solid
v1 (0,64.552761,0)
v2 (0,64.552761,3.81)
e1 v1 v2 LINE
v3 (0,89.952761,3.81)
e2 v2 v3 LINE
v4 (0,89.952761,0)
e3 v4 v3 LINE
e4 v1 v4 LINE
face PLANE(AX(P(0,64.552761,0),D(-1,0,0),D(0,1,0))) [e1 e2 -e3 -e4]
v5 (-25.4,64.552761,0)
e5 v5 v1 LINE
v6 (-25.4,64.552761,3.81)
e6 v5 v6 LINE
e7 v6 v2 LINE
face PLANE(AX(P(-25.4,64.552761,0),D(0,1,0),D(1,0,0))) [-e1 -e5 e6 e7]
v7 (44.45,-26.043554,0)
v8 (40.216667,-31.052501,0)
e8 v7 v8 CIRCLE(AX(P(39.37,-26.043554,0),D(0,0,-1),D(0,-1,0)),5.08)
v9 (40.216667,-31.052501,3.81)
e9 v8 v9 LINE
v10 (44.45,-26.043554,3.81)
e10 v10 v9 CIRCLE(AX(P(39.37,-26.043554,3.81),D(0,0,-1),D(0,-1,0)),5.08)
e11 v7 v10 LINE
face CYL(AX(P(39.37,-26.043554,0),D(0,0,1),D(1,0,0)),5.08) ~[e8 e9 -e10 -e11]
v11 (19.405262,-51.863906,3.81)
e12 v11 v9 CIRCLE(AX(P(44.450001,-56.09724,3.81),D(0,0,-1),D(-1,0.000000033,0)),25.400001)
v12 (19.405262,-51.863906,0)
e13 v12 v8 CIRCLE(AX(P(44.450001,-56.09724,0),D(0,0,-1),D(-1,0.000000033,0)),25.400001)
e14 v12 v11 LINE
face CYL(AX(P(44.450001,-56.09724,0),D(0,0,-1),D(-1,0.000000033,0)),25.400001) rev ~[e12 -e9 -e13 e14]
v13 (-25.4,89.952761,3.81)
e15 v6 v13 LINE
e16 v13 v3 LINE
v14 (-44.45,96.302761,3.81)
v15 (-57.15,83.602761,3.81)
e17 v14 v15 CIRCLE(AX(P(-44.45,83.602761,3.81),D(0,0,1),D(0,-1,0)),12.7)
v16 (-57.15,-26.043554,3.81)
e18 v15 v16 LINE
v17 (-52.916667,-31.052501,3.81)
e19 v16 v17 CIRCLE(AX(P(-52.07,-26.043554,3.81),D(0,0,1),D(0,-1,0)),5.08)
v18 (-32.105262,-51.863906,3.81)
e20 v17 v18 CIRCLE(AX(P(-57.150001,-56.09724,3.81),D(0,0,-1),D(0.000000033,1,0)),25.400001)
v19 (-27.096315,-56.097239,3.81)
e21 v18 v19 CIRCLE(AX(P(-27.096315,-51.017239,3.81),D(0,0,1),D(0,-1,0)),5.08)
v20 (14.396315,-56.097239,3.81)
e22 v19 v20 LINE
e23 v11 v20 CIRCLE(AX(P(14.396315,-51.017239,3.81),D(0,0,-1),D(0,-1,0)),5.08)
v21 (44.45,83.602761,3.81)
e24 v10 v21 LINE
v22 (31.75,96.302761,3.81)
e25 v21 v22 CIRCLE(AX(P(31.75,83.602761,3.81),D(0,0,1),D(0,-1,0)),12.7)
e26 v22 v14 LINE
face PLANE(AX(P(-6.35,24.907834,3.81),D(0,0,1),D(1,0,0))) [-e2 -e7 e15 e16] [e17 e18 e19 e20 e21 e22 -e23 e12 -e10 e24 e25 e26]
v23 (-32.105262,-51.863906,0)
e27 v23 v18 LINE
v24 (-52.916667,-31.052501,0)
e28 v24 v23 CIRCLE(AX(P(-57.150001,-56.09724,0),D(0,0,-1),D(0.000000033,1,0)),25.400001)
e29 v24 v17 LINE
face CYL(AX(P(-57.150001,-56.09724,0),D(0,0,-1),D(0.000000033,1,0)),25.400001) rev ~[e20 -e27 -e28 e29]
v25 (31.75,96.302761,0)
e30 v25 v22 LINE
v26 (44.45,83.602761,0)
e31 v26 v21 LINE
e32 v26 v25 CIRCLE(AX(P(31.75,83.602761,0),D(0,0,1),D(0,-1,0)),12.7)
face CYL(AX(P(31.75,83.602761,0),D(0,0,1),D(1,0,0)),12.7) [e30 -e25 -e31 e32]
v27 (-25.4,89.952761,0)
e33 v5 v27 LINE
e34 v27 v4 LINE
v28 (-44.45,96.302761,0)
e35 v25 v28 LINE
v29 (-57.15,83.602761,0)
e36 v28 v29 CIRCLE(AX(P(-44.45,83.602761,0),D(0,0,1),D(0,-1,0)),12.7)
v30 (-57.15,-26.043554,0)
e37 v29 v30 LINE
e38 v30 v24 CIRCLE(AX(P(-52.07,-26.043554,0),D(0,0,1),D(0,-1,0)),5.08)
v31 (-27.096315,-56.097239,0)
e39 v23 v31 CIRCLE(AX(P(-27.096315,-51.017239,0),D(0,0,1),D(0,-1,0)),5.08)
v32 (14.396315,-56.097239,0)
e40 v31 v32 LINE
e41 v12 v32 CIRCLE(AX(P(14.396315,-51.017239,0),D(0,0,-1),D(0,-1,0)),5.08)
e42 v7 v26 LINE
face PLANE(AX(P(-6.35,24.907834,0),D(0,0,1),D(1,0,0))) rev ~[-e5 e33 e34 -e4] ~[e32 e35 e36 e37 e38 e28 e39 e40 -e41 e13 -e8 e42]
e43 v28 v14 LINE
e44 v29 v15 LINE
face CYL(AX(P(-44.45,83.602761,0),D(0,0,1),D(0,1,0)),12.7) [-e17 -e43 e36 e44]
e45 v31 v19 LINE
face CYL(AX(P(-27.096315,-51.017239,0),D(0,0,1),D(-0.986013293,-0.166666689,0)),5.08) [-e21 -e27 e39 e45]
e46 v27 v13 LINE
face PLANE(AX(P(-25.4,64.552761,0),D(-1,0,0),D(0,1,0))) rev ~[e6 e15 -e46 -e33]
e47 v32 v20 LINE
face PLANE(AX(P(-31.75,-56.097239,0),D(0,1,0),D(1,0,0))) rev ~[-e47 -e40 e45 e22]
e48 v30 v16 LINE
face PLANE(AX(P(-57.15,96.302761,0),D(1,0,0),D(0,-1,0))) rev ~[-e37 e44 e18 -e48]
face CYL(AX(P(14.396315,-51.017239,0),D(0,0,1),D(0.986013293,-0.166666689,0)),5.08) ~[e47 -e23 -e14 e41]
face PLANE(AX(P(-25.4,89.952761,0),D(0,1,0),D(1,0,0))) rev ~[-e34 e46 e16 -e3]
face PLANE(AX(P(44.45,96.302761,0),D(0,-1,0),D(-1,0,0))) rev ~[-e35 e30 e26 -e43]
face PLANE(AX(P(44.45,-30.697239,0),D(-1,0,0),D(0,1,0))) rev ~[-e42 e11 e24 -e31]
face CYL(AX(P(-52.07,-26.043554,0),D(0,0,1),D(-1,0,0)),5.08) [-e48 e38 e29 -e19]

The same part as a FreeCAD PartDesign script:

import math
import FreeCAD as App
import Part
import Sketcher
from FreeCAD import Vector
Q = App.Units.Quantity


def edges_at(feature, points):
    """Names of the edges that pass closest to the given points."""
    edges = feature.Shape.Edges
    near = lambda p: min(range(len(edges)), key=lambda i: edges[i].distToShape(Part.Vertex(*p))[0])
    return sorted({f"Edge{near(p) + 1}" for p in points})


def add_polygon(sketch, points):
    """Adds a closed chain of lines whose ends are joined by coincident constraints."""
    first, n = sketch.GeometryCount, len(points)
    for a, b in zip(points, points[1:] + points[:1]):
        sketch.addGeometry(Part.LineSegment(App.Vector(*a, 0), App.Vector(*b, 0)), False)
    for i in range(n):
        sketch.addConstraint(Sketcher.Constraint("Coincident", first + i, 2, first + (i + 1) % n, 1))

doc = App.newDocument("Part")
body = doc.addObject("PartDesign::Body", "Body")

# Sketch on XY plane
sketch1 = body.newObject("Sketcher::SketchObject", "Sketch")
sketch1.AttachmentSupport = (doc.getObject("XY_Plane"), [""])
sketch1.MapMode = "FlatFace"
sketch1.addGeometry(Part.LineSegment(Vector(-57, 96, 0), Vector(-57, -31, 0)), False)  # 0
sketch1.addGeometry(Part.ArcOfCircle(Part.Circle(Vector(-57, -56, 0), Vector(0, 0, 1), 25), math.radians(0), math.radians(90)), False)  # 1
sketch1.addGeometry(Part.LineSegment(Vector(-32, -56, 0), Vector(19, -56, 0)), False)  # 2
sketch1.addGeometry(Part.ArcOfCircle(Part.Circle(Vector(44, -56, 0), Vector(0, 0, 1), 25), math.radians(90), math.radians(180)), False)  # 3
sketch1.addGeometry(Part.LineSegment(Vector(44, -31, 0), Vector(44, 96, 0)), False)  # 4
sketch1.addGeometry(Part.LineSegment(Vector(44, 96, 0), Vector(-57, 96, 0)), False)  # 5
add_polygon(sketch1, [(0, 65), (-25, 65), (-25, 90), (0, 90)])  # lines 6-9
sketch1.addConstraint(Sketcher.Constraint("Coincident", 0, 2, 1, 2))
sketch1.addConstraint(Sketcher.Constraint("Coincident", 1, 1, 2, 1))
sketch1.addConstraint(Sketcher.Constraint("Coincident", 2, 2, 3, 2))
sketch1.addConstraint(Sketcher.Constraint("Coincident", 3, 1, 4, 1))
sketch1.addConstraint(Sketcher.Constraint("Coincident", 4, 2, 5, 1))
sketch1.addConstraint(Sketcher.Constraint("Coincident", 5, 2, 0, 1))
sketch1.addConstraint(Sketcher.Constraint("Vertical", 0))
sketch1.addConstraint(Sketcher.Constraint("Horizontal", 2))
sketch1.addConstraint(Sketcher.Constraint("Vertical", 4))
sketch1.addConstraint(Sketcher.Constraint("Horizontal", 5))
sketch1.addConstraint(Sketcher.Constraint("Horizontal", 6))
sketch1.addConstraint(Sketcher.Constraint("Vertical", 7))
sketch1.addConstraint(Sketcher.Constraint("Horizontal", 8))
sketch1.addConstraint(Sketcher.Constraint("Vertical", 9))
sketch1.addConstraint(Sketcher.Constraint("Equal", 1, 3))
sketch1.addConstraint(Sketcher.Constraint("PointOnObject", 8, 2, -2))
sketch1.addConstraint(Sketcher.Constraint("Horizontal", 1, 3, 3, 3))
sketch1.addConstraint(Sketcher.Constraint("Horizontal", 3, 3, 1, 1))
sketch1.addConstraint(Sketcher.Constraint("Vertical", 1, 3, 0, 2))
sketch1.addConstraint(Sketcher.Constraint("Equal", 8, 7))
sketch1.addConstraint(Sketcher.Constraint("Radius", 1, Q("1 in")))
sketch1.addConstraint(Sketcher.Constraint("DistanceX", 2, 1, 2, 2, Q("2 in")))
sketch1.addConstraint(Sketcher.Constraint("DistanceX", 5, 2, 5, 1, Q("4 in")))
sketch1.addConstraint(Sketcher.Constraint("DistanceX", 6, 2, 6, 1, Q("1 in")))
sketch1.addConstraint(Sketcher.Constraint("DistanceY", 0, 2, 0, 1, Q("5 in")))
sketch1.addConstraint(Sketcher.Constraint("DistanceX", 1, 3, -1, 1, Q("2.25 in")))
sketch1.addConstraint(Sketcher.Constraint("DistanceY", 6, 2, 5, 2, Q("1.25 in")))
sketch1.addConstraint(Sketcher.Constraint("DistanceY", 1, 3, -1, 1, Q("56.09724 mm")))
pad1 = body.newObject("PartDesign::Pad", "Pad")
pad1.Profile = sketch1
pad1.Length = Q("0.15 in")
doc.recompute()

fillet = body.newObject("PartDesign::Fillet", "Fillet")
fillet.Base = (pad1, edges_at(pad1, [(-57.15, -30.697, 1.905), (-31.75, -56.097, 1.905)]))
fillet.Radius = Q("0.2 in")
doc.recompute()

fillet2 = body.newObject("PartDesign::Fillet", "Fillet001")
fillet2.Base = (fillet, edges_at(fillet, [(44.45, -30.697, 1.905), (19.05, -56.097, 1.905)]))
fillet2.Radius = Q("0.2 in")
doc.recompute()

fillet3 = body.newObject("PartDesign::Fillet", "Fillet002")
fillet3.Base = (fillet2, edges_at(fillet2, [(-57.15, 96.303, 1.905), (44.45, 96.303, 1.905)]))
fillet3.Radius = Q("0.5 in")

doc.recompute()
